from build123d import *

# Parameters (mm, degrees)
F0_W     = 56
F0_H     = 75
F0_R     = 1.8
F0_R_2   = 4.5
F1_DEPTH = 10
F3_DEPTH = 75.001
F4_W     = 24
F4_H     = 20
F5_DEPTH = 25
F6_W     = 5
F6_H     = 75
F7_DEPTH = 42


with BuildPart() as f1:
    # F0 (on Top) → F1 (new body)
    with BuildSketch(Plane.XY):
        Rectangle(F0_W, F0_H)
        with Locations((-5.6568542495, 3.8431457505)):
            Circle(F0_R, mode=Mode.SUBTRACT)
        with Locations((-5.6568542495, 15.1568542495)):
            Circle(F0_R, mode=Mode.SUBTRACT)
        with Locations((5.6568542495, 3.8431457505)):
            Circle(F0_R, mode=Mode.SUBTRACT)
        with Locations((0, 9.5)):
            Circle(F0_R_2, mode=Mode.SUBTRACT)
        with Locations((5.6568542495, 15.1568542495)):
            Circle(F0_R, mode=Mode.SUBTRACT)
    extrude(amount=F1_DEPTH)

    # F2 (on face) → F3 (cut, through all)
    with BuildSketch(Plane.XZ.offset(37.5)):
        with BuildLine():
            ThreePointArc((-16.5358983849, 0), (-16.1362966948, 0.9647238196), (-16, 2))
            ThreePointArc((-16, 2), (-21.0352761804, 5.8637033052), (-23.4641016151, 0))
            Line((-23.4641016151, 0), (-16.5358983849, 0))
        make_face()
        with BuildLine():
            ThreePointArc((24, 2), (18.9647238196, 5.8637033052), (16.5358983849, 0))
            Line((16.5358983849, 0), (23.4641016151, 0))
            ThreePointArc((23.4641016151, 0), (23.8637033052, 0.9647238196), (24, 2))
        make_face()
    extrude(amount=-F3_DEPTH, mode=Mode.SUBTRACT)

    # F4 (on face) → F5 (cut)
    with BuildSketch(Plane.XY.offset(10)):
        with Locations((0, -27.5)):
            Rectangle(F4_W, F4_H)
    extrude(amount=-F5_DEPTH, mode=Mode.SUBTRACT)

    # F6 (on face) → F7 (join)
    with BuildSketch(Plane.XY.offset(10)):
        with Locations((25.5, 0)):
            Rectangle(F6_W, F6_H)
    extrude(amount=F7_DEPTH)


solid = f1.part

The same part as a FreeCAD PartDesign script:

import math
import FreeCAD as App
import Part
import Sketcher
from FreeCAD import Vector
Q = App.Units.Quantity


def add_polygon(sketch, points):
    """Adds a closed chain of lines whose ends are joined by coincident constraints."""
    first, n = sketch.GeometryCount, len(points)
    for a, b in zip(points, points[1:] + points[:1]):
        sketch.addGeometry(Part.LineSegment(App.Vector(*a, 0), App.Vector(*b, 0)), False)
    for i in range(n):
        sketch.addConstraint(Sketcher.Constraint("Coincident", first + i, 2, first + (i + 1) % n, 1))

doc = App.newDocument("Part")
params = doc.addObject("Spreadsheet::Sheet", "Params")
for row, (alias, value) in enumerate([
    ("sketch1_diameter", "9 mm"),
    ("sketch1_diameter2", "3.6 mm"),
    ("sketch1_width", "56 mm"),
    ("sketch1_height", "75 mm"),
    ("pad1_length", "10 mm"),
    ("sketch2_radius", "4 mm"),
    ("sketch3_width", "24 mm"),
    ("sketch3_height", "20 mm"),
    ("pocket2_length", "25 mm"),
    ("sketch4_width", "5 mm"),
    ("sketch4_height", "75 mm"),
    ("pad2_length", "42 mm"),
], start=1):
    params.set(f"A{row}", alias)
    params.set(f"B{row}", "=" + value)
    params.setAlias(f"B{row}", alias)

body = doc.addObject("PartDesign::Body", "Body")

# Sketch on XY plane
sketch1 = body.newObject("Sketcher::SketchObject", "Sketch")
sketch1.AttachmentSupport = (doc.getObject("XY_Plane"), [""])
sketch1.MapMode = "FlatFace"
add_polygon(sketch1, [(-28, 37.5), (-28, -37.5), (28, -37.5), (28, 37.5)])  # lines 0-3
sketch1.addGeometry(Part.Circle(Vector(-5.7, 3.8, 0), Vector(0, 0, 1), 1.8), False)  # 4
sketch1.addGeometry(Part.Circle(Vector(5.7, 3.8, 0), Vector(0, 0, 1), 1.8), False)  # 5
sketch1.addGeometry(Part.Circle(Vector(-5.7, 15.2, 0), Vector(0, 0, 1), 1.8), False)  # 6
sketch1.addGeometry(Part.Circle(Vector(0, 9.5, 0), Vector(0, 0, 1), 4.5), False)  # 7
sketch1.addGeometry(Part.Circle(Vector(5.7, 15.2, 0), Vector(0, 0, 1), 1.8), False)  # 8
sketch1.addConstraint([
    Sketcher.Constraint("Vertical", 0),
    Sketcher.Constraint("Horizontal", 1),
    Sketcher.Constraint("Vertical", 2),
    Sketcher.Constraint("Horizontal", 3),
    Sketcher.Constraint("Equal", 4, 5),
    Sketcher.Constraint("Equal", 5, 6),
    Sketcher.Constraint("Equal", 6, 8),
    Sketcher.Constraint("Symmetric", 0, 2, 2, 2, -1, 1),
    Sketcher.Constraint("Symmetric", 4, 3, 5, 3, -2),
    Sketcher.Constraint("Symmetric", 6, 3, 8, 3, -2),
    Sketcher.Constraint("PointOnObject", 7, 3, -2),
    Sketcher.Constraint("Vertical", 4, 3, 6, 3),
    Sketcher.Constraint("Diameter", 7, Q("9 mm")),
    Sketcher.Constraint("Diameter", 4, Q("3.6 mm")),
    Sketcher.Constraint("DistanceX", 1, 1, 1, 2, Q("56 mm")),
    Sketcher.Constraint("DistanceY", 0, 2, 0, 1, Q("75 mm")),
    Sketcher.Constraint("DistanceY", 0, 2, 7, 3, Q("47 mm")),
    Sketcher.Constraint("DistanceX", 4, 3, 5, 3, Q("11.313709 mm")),
    Sketcher.Constraint("DistanceY", 4, 3, 6, 3, Q("11.313708 mm")),
    Sketcher.Constraint("DistanceY", -1, 1, 4, 3, Q("3.843146 mm")),
])
sketch1.setExpression("Constraints[16]", "Params.sketch1_diameter")
sketch1.setExpression("Constraints[17]", "Params.sketch1_diameter2")
sketch1.setExpression("Constraints[18]", "Params.sketch1_width")
sketch1.setExpression("Constraints[19]", "Params.sketch1_height")
pad1 = body.newObject("PartDesign::Pad", "Pad")
pad1.Profile = sketch1
pad1.setExpression("Length", "Params.pad1_length")

# Sketch on XZ plane
sketch2 = body.newObject("Sketcher::SketchObject", "Sketch001")
sketch2.AttachmentSupport = (doc.getObject("XZ_Plane"), [""])
sketch2.MapMode = "FlatFace"
sketch2.AttachmentOffset = App.Placement(Vector(0, 0, 37.5), App.Rotation())
sketch2.addGeometry([
    Part.ArcOfCircle(Part.Circle(Vector(-20, 2, 0), Vector(0, 0, 1), 4), math.radians(-30), math.radians(0)),  # 0
    Part.ArcOfCircle(Part.Circle(Vector(-20, 2, 0), Vector(0, 0, 1), 4), math.radians(0), math.radians(210)),  # 1
    Part.LineSegment(Vector(-23.5, 0, 0), Vector(-16.5, 0, 0)),  # 2
    Part.ArcOfCircle(Part.Circle(Vector(20, 2, 0), Vector(0, 0, 1), 4), math.radians(0), math.radians(210)),  # 3
    Part.LineSegment(Vector(16.5, 0, 0), Vector(23.5, 0, 0)),  # 4
    Part.ArcOfCircle(Part.Circle(Vector(20, 2, 0), Vector(0, 0, 1), 4), math.radians(-30), math.radians(0)),  # 5
], False)
sketch2.addConstraint([
    Sketcher.Constraint("Tangent", 0, 2, 1, 1),
    Sketcher.Constraint("Coincident", 1, 2, 2, 1),
    Sketcher.Constraint("Coincident", 2, 2, 0, 1),
    Sketcher.Constraint("Coincident", 3, 2, 4, 1),
    Sketcher.Constraint("Coincident", 4, 2, 5, 1),
    Sketcher.Constraint("Tangent", 5, 2, 3, 1),
    Sketcher.Constraint("Horizontal", 2),
    Sketcher.Constraint("Horizontal", 4),
    Sketcher.Constraint("Equal", 0, 1),
    Sketcher.Constraint("Equal", 1, 3),
    Sketcher.Constraint("Equal", 3, 5),
    Sketcher.Constraint("Symmetric", 2, 2, 3, 2, -1, 1),
    Sketcher.Constraint("Symmetric", 0, 3, 3, 3, -2),
    Sketcher.Constraint("Horizontal", 5, 3, 0, 2),
    Sketcher.Constraint("Horizontal", 0, 2, 5, 2),
    Sketcher.Constraint("Radius", 0, Q("4 mm")),
    Sketcher.Constraint("DistanceX", 0, 3, -1, 1, Q("20 mm")),
    Sketcher.Constraint("DistanceY", -1, 1, 0, 3, Q("2 mm")),
])
sketch2.setExpression("Constraints[15]", "Params.sketch2_radius")
pocket1 = body.newObject("PartDesign::Pocket", "Pocket")
pocket1.Profile = sketch2
pocket1.Type = "ThroughAll"

# Sketch on XY plane
sketch3 = body.newObject("Sketcher::SketchObject", "Sketch002")
sketch3.AttachmentSupport = (doc.getObject("XY_Plane"), [""])
sketch3.MapMode = "FlatFace"
sketch3.AttachmentOffset = App.Placement(Vector(0, 0, 10), App.Rotation())
add_polygon(sketch3, [(-12, -18), (-12, -38), (12, -38), (12, -18)])  # lines 0-3
sketch3.addConstraint([
    Sketcher.Constraint("Vertical", 0),
    Sketcher.Constraint("Horizontal", 1),
    Sketcher.Constraint("Vertical", 2),
    Sketcher.Constraint("Horizontal", 3),
    Sketcher.Constraint("DistanceX", 1, 1, 1, 2, Q("24 mm")),
    Sketcher.Constraint("DistanceY", 0, 2, 0, 1, Q("20 mm")),
    Sketcher.Constraint("DistanceX", 0, 2, -1, 1, Q("12 mm")),
    Sketcher.Constraint("DistanceY", 0, 2, -1, 1, Q("37.5 mm")),
])
sketch3.setExpression("Constraints[8]", "Params.sketch3_width")
sketch3.setExpression("Constraints[9]", "Params.sketch3_height")
pocket2 = body.newObject("PartDesign::Pocket", "Pocket001")
pocket2.Profile = sketch3
pocket2.setExpression("Length", "Params.pocket2_length")

# Sketch on XY plane
sketch4 = body.newObject("Sketcher::SketchObject", "Sketch003")
sketch4.AttachmentSupport = (doc.getObject("XY_Plane"), [""])
sketch4.MapMode = "FlatFace"
sketch4.AttachmentOffset = App.Placement(Vector(0, 0, 10), App.Rotation())
add_polygon(sketch4, [(23, 38), (23, -38), (28, -38), (28, 38)])  # lines 0-3
sketch4.addConstraint([
    Sketcher.Constraint("Vertical", 0),
    Sketcher.Constraint("Horizontal", 1),
    Sketcher.Constraint("Vertical", 2),
    Sketcher.Constraint("Horizontal", 3),
    Sketcher.Constraint("DistanceX", 1, 1, 1, 2, Q("5 mm")),
    Sketcher.Constraint("DistanceY", 0, 2, 0, 1, Q("75 mm")),
    Sketcher.Constraint("DistanceX", -1, 1, 0, 2, Q("23 mm")),
    Sketcher.Constraint("DistanceY", 0, 2, -1, 1, Q("37.5 mm")),
])
sketch4.setExpression("Constraints[8]", "Params.sketch4_width")
sketch4.setExpression("Constraints[9]", "Params.sketch4_height")
pad2 = body.newObject("PartDesign::Pad", "Pad001")
pad2.Profile = sketch4
pad2.setExpression("Length", "Params.pad2_length")

doc.recompute()
